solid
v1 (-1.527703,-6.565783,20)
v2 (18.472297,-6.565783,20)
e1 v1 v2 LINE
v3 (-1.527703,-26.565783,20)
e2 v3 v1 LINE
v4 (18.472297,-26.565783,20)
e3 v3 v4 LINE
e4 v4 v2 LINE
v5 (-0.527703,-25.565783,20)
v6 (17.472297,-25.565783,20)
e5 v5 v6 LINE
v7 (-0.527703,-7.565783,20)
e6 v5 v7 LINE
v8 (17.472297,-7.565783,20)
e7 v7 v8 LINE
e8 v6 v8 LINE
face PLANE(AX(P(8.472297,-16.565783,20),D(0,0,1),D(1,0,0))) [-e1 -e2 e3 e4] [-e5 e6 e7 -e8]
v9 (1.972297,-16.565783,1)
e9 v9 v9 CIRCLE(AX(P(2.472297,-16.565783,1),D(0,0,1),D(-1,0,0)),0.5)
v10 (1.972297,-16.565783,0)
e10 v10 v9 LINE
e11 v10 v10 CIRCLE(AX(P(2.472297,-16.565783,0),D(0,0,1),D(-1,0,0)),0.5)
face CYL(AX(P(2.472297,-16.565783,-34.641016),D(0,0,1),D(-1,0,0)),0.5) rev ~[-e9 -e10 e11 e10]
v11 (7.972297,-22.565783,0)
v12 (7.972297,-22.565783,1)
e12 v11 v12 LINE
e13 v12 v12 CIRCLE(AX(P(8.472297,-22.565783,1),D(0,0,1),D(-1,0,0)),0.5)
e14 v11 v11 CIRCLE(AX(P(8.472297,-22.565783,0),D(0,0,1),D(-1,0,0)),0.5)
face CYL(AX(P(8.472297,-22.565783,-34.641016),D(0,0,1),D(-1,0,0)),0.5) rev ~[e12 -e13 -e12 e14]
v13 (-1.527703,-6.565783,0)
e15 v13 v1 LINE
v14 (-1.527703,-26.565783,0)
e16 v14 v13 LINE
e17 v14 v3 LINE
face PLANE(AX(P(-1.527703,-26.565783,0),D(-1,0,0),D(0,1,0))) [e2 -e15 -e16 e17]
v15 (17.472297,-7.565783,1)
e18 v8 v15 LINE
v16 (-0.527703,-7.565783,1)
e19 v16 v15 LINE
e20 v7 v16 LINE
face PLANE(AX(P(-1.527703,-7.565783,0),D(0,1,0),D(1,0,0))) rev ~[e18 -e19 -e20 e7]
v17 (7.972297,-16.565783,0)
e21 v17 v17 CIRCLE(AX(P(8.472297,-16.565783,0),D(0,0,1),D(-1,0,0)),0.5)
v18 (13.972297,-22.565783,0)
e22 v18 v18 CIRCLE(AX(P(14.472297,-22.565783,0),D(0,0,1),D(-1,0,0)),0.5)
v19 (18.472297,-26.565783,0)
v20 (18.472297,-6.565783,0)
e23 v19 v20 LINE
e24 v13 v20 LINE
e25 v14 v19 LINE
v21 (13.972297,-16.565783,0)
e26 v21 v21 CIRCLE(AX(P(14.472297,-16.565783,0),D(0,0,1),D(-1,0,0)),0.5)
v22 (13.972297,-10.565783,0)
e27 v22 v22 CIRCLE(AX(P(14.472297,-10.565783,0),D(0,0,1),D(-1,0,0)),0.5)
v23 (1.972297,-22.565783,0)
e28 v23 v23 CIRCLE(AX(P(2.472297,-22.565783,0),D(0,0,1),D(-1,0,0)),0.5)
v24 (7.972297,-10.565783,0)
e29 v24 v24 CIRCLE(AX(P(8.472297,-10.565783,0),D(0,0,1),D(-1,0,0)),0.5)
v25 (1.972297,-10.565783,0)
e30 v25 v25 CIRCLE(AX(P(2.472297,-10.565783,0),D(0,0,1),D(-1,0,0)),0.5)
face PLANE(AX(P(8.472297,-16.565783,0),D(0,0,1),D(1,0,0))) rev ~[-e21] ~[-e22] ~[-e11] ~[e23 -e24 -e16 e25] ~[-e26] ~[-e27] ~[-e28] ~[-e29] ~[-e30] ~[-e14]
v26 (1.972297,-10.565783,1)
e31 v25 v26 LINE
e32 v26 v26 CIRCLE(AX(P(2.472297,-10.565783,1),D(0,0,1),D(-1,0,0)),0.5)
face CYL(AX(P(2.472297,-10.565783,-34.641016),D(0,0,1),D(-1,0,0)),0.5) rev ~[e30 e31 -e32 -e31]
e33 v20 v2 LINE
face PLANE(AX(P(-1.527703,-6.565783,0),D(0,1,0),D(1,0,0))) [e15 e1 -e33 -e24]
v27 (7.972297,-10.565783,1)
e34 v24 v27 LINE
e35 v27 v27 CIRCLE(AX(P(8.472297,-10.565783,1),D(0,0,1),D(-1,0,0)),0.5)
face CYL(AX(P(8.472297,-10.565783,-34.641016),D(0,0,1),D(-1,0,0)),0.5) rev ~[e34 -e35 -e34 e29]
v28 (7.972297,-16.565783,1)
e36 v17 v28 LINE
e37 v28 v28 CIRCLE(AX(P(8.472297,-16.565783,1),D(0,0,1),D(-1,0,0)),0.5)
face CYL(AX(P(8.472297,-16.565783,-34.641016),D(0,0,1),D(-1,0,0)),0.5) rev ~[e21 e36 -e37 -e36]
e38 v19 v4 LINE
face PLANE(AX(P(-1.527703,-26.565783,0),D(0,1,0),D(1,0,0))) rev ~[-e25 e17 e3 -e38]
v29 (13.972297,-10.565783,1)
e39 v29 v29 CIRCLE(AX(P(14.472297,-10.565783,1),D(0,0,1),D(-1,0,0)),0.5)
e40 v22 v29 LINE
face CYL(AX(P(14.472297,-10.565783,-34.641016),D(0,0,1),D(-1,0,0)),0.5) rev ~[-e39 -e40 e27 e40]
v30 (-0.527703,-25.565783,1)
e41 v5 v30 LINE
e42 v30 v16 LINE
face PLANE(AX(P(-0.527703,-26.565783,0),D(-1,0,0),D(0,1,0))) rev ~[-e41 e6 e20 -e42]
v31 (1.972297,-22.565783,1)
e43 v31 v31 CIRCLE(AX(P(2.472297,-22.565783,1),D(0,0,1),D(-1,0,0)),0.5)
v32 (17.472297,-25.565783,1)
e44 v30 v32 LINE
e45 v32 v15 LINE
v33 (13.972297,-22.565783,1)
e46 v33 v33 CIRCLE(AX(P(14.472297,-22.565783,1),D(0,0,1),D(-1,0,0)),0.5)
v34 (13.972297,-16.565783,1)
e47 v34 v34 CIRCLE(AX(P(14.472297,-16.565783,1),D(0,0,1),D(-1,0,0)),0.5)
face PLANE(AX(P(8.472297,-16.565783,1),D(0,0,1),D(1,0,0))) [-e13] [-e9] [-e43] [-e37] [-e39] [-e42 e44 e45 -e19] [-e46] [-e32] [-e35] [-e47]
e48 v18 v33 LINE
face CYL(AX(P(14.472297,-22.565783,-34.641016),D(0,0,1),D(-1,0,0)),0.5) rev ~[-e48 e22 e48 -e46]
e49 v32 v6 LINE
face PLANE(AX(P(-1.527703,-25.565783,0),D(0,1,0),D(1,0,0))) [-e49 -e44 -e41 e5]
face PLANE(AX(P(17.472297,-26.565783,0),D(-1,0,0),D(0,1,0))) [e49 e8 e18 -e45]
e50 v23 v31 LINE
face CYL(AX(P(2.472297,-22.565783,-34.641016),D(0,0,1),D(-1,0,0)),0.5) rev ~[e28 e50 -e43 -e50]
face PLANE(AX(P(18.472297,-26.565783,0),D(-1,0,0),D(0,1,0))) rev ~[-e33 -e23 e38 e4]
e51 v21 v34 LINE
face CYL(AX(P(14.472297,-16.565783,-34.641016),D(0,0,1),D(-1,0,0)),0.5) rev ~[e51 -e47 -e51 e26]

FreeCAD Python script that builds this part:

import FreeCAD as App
import Part
import Sketcher

V = App.Vector


def faces_at(feature, points):
    """Names of the faces that lie closest to the given points."""
    faces = feature.Shape.Faces
    near = lambda p: min(range(len(faces)), key=lambda i: faces[i].distToShape(Part.Vertex(*p))[0])
    return sorted({f"Face{near(p) + 1}" for p in points})

doc = App.newDocument("Part")
body = doc.addObject("PartDesign::Body", "Body")

# Sketch on XY plane
sketch1 = body.newObject("Sketcher::SketchObject", "Sketch")
sketch1.AttachmentSupport = (doc.getObject("XY_Plane"), [""])
sketch1.MapMode = "FlatFace"
sketch1.addGeometry([
    Part.LineSegment(V(-2, -7, 0), V(-2, -27, 0)),
    Part.LineSegment(V(-2, -27, 0), V(18, -27, 0)),
    Part.LineSegment(V(18, -27, 0), V(18, -7, 0)),
    Part.LineSegment(V(18, -7, 0), V(-2, -7, 0)),
], False)
sketch1.addConstraint([
    Sketcher.Constraint("Coincident", 0, 2, 1, 1),
    Sketcher.Constraint("Coincident", 1, 2, 2, 1),
    Sketcher.Constraint("Coincident", 2, 2, 3, 1),
    Sketcher.Constraint("Coincident", 3, 2, 0, 1),
    Sketcher.Constraint("Vertical", 0),
    Sketcher.Constraint("Horizontal", 1),
    Sketcher.Constraint("Vertical", 2),
    Sketcher.Constraint("Horizontal", 3),
    Sketcher.Constraint("Equal", 3, 0),
    Sketcher.Constraint("DistanceX", 1, 1, 1, 2, 20.0),
    Sketcher.Constraint("DistanceX", 0, 2, -1, 1, 1.527703),
    Sketcher.Constraint("DistanceY", 0, 2, -1, 1, 26.565783),
])
pad1 = body.newObject("PartDesign::Pad", "Pad")
pad1.Profile = sketch1
pad1.Length = 20
doc.recompute()

thickness = body.newObject("PartDesign::Thickness", "Thickness")
thickness.Base = (pad1, faces_at(pad1, [(8.472, -16.566, 20)]))
thickness.Value = 1
thickness.Reversed = True
thickness.Join = "Arc"

# Sketch on XY plane
sketch2 = body.newObject("Sketcher::SketchObject", "Sketch001")
sketch2.AttachmentSupport = (doc.getObject("XY_Plane"), [""])
sketch2.MapMode = "FlatFace"
sketch2.addGeometry([
    Part.Circle(V(14.5, -10.6, 0), V(0, 0, 1), 0.5),  # 0
    Part.Circle(V(8.5, -10.6, 0), V(0, 0, 1), 0.5),  # 1
    Part.Circle(V(2.5, -10.6, 0), V(0, 0, 1), 0.5),  # 2
    Part.Circle(V(2.5, -16.6, 0), V(0, 0, 1), 0.5),  # 3
    Part.Circle(V(8.5, -16.6, 0), V(0, 0, 1), 0.5),  # 4
    Part.Circle(V(14.5, -16.6, 0), V(0, 0, 1), 0.5),  # 5
    Part.Circle(V(14.5, -22.6, 0), V(0, 0, 1), 0.5),  # 6
    Part.Circle(V(8.5, -22.6, 0), V(0, 0, 1), 0.5),  # 7
    Part.Circle(V(2.5, -22.6, 0), V(0, 0, 1), 0.5),  # 8
], False)
sketch2.addConstraint([
    Sketcher.Constraint("Equal", 0, 1),
    Sketcher.Constraint("Equal", 1, 2),
    Sketcher.Constraint("Equal", 2, 3),
    Sketcher.Constraint("Equal", 3, 4),
    Sketcher.Constraint("Equal", 4, 5),
    Sketcher.Constraint("Equal", 5, 6),
    Sketcher.Constraint("Equal", 6, 7),
    Sketcher.Constraint("Equal", 7, 8),
    Sketcher.Constraint("Horizontal", 0, 3, 1, 3),
    Sketcher.Constraint("Horizontal", 1, 3, 2, 3),
    Sketcher.Constraint("Horizontal", 3, 3, 4, 3),
    Sketcher.Constraint("Horizontal", 4, 3, 5, 3),
    Sketcher.Constraint("Horizontal", 6, 3, 7, 3),
    Sketcher.Constraint("Horizontal", 7, 3, 8, 3),
    Sketcher.Constraint("Vertical", 2, 3, 3, 3),
    Sketcher.Constraint("Vertical", 1, 3, 4, 3),
    Sketcher.Constraint("Vertical", 0, 3, 5, 3),
    Sketcher.Constraint("Vertical", 5, 3, 6, 3),
    Sketcher.Constraint("Vertical", 4, 3, 7, 3),
    Sketcher.Constraint("Vertical", 3, 3, 8, 3),
    Sketcher.Constraint("Diameter", 0, 1.0),
    Sketcher.Constraint("DistanceX", 1, 3, 0, 3, 6.0),
    Sketcher.Constraint("DistanceX", 2, 3, 1, 3, 6.0),
    Sketcher.Constraint("DistanceY", 3, 3, 2, 3, 6.0),
    Sketcher.Constraint("DistanceY", 6, 3, 5, 3, 6.0),
    Sketcher.Constraint("DistanceX", -1, 1, 0, 3, 14.472297),
    Sketcher.Constraint("DistanceY", 0, 3, -1, 1, 10.565783),
])
doc.recompute()
hole = body.newObject("PartDesign::Hole", "Hole")
hole.Profile = sketch2
hole.ThreadType = "None"
hole.Diameter = 1
hole.DepthType = "ThroughAll"
hole.Reversed = True

doc.recompute()
